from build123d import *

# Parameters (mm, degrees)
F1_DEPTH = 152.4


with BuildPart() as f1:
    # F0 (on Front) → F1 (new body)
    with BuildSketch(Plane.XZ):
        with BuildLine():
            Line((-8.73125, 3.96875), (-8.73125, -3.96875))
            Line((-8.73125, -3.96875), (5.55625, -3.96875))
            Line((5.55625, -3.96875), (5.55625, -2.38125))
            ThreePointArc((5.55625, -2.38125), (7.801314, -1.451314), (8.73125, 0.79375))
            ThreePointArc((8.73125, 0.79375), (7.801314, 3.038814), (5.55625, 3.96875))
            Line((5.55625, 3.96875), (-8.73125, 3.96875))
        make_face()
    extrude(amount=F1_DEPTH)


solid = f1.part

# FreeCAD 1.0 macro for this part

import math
import FreeCAD as App
import Part
import Sketcher
from FreeCAD import Vector
Q = App.Units.Quantity

doc = App.newDocument("Part")
body = doc.addObject("PartDesign::Body", "Body")

# Sketch on XZ plane
sketch1 = body.newObject("Sketcher::SketchObject", "Sketch")
sketch1.AttachmentSupport = (doc.getObject("XZ_Plane"), [""])
sketch1.MapMode = "FlatFace"
sketch1.addGeometry([
    Part.LineSegment(Vector(-8.7, 4, 0), Vector(-8.7, -4, 0)),  # 0
    Part.LineSegment(Vector(-8.7, -4, 0), Vector(5.6, -4, 0)),  # 1
    Part.LineSegment(Vector(5.6, -4, 0), Vector(5.6, -2.4, 0)),  # 2
    Part.ArcOfCircle(Part.Circle(Vector(5.6, 0.8, 0), Vector(0, 0, 1), 3.2), math.radians(-90), math.radians(0)),  # 3
    Part.ArcOfCircle(Part.Circle(Vector(5.6, 0.8, 0), Vector(0, 0, 1), 3.2), math.radians(0), math.radians(90)),  # 4
    Part.LineSegment(Vector(5.6, 4, 0), Vector(-8.7, 4, 0)),  # 5
], False)
sketch1.addConstraint([
    Sketcher.Constraint("Coincident", 0, 2, 1, 1),
    Sketcher.Constraint("Coincident", 1, 2, 2, 1),
    Sketcher.Constraint("Coincident", 2, 2, 3, 1),
    Sketcher.Constraint("Tangent", 3, 2, 4, 1),
    Sketcher.Constraint("Tangent", 4, 2, 5, 1),
    Sketcher.Constraint("Coincident", 5, 2, 0, 1),
    Sketcher.Constraint("Vertical", 0),
    Sketcher.Constraint("Horizontal", 1),
    Sketcher.Constraint("Vertical", 2),
    Sketcher.Constraint("Horizontal", 5),
    Sketcher.Constraint("Equal", 3, 4),
    Sketcher.Constraint("Symmetric", 1, 2, 4, 2, -1),
    Sketcher.Constraint("Horizontal", 4, 3, 3, 2),
    Sketcher.Constraint("Radius", 3, Q("0.125 in")),
    Sketcher.Constraint("DistanceX", 1, 1, 1, 2, Q("0.5625 in")),
    Sketcher.Constraint("DistanceY", 0, 2, 0, 1, Q("0.3125 in")),
    Sketcher.Constraint("DistanceX", -1, 1, 3, 3, Q("0.21875 in")),
])
pad1 = body.newObject("PartDesign::Pad", "Pad")
pad1.Profile = sketch1
pad1.Length = Q("6 in")

doc.recompute()
